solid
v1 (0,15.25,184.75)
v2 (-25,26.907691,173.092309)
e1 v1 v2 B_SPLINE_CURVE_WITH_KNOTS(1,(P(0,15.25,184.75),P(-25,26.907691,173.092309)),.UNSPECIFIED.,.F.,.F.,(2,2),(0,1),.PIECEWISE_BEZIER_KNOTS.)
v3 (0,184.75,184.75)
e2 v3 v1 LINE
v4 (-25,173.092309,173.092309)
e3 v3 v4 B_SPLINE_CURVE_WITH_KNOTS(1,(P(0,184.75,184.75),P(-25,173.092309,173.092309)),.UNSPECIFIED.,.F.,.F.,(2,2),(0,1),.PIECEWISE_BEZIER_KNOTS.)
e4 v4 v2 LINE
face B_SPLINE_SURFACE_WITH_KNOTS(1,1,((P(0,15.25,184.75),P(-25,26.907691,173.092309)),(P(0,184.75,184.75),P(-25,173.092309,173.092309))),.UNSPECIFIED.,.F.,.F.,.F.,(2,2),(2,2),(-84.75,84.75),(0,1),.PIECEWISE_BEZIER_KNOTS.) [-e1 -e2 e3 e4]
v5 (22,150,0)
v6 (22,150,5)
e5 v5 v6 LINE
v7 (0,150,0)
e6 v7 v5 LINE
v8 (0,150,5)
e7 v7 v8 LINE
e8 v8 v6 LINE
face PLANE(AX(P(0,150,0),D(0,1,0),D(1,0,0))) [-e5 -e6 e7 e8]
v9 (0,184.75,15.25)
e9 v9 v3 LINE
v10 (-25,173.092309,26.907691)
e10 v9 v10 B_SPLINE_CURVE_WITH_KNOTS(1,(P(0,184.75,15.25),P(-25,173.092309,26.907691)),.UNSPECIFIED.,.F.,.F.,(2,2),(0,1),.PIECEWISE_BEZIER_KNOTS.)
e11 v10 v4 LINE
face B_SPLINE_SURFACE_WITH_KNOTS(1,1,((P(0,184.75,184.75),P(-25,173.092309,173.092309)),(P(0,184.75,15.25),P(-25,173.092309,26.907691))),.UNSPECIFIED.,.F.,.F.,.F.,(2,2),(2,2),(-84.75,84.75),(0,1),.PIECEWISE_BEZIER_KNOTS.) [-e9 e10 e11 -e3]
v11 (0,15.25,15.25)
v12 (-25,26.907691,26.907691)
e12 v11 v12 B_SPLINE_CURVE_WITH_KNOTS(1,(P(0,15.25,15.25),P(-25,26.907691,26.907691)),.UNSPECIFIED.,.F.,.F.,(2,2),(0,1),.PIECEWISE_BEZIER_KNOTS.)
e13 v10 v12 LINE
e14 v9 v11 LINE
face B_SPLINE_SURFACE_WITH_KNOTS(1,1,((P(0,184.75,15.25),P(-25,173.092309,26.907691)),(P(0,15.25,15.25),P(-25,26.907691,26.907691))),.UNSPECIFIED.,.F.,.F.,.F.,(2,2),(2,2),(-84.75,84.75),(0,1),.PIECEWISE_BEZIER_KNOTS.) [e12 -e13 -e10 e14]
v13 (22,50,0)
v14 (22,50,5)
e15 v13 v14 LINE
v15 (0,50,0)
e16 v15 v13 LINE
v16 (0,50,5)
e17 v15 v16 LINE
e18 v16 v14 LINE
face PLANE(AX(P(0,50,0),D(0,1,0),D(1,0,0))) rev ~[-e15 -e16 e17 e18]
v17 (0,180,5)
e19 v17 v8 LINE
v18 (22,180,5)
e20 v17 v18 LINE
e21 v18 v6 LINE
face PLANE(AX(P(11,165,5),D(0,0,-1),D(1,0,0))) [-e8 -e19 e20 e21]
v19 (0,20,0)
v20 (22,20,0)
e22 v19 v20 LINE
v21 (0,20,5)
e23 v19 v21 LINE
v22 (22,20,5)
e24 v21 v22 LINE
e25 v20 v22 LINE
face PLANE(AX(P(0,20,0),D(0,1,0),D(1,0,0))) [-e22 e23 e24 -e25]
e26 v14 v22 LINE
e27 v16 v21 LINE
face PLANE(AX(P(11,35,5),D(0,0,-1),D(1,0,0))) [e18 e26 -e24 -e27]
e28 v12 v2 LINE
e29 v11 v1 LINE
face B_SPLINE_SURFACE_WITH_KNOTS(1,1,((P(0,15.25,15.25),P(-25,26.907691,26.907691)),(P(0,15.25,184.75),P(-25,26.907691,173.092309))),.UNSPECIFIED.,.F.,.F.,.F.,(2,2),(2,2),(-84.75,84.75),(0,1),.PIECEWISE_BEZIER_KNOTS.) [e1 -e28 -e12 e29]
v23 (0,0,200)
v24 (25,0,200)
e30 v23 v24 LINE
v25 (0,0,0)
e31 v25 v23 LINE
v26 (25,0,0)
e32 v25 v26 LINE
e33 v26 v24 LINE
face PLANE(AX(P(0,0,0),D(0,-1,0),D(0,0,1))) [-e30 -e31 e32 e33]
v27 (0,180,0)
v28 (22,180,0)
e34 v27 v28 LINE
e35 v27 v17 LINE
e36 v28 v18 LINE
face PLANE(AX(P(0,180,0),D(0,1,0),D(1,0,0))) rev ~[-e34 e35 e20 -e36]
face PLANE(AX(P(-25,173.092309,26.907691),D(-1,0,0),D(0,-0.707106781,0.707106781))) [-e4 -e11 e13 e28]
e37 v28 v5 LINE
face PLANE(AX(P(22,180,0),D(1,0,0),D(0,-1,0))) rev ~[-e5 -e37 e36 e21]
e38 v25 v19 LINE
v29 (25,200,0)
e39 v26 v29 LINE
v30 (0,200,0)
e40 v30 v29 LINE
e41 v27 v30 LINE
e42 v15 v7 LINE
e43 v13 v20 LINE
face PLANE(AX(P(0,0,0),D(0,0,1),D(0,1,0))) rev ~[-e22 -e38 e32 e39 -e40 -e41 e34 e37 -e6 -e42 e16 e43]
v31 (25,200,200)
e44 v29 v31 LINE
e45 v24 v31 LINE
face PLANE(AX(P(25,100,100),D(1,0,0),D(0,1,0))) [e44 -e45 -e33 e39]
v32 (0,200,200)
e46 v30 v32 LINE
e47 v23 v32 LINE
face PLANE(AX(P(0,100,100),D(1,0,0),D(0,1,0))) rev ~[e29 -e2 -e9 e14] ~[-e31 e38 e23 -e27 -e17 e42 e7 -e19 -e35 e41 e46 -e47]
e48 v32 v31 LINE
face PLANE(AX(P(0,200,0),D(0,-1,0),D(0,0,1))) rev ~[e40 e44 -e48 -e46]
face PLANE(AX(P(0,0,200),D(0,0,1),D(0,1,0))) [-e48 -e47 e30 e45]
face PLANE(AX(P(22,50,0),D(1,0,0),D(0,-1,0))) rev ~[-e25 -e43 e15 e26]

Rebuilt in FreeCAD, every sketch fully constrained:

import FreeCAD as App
import Part
import Sketcher

V = App.Vector
Q = App.Units.Quantity


def add_polygon(sketch, points):
    """Adds a closed chain of lines whose ends are joined by coincident constraints."""
    first, n = sketch.GeometryCount, len(points)
    for a, b in zip(points, points[1:] + points[:1]):
        sketch.addGeometry(Part.LineSegment(App.Vector(*a, 0), App.Vector(*b, 0)), False)
    for i in range(n):
        sketch.addConstraint(Sketcher.Constraint("Coincident", first + i, 2, first + (i + 1) % n, 1))

doc = App.newDocument("Part")
params = doc.addObject("Spreadsheet::Sheet", "Params")
for row, (alias, value) in enumerate([
    ("sketch1_width", "200 mm"),
    ("pad1_length", "25 mm"),
    ("sketch2_width", "169.5 mm"),
    ("pad2_length", "25 mm"),
    ("pad2_taper", "-25 deg"),
    ("sketch3_width", "22 mm"),
    ("sketch3_height", "30 mm"),
    ("pocket1_length", "5 mm"),
], start=1):
    params.set(f"A{row}", alias)
    params.set(f"B{row}", "=" + value)
    params.setAlias(f"B{row}", alias)

body = doc.addObject("PartDesign::Body", "Body")

sketch1 = body.newObject("Sketcher::SketchObject", "Sketch")
sketch1.AttachmentSupport = (doc.getObject("YZ_Plane"), [""])
sketch1.MapMode = "FlatFace"
add_polygon(sketch1, [(0, 200), (0, 0), (200, 0), (200, 200)])
sketch1.addConstraint(Sketcher.Constraint("Vertical", 0))
sketch1.addConstraint(Sketcher.Constraint("Horizontal", 1))
sketch1.addConstraint(Sketcher.Constraint("Vertical", 2))
sketch1.addConstraint(Sketcher.Constraint("Horizontal", 3))
sketch1.addConstraint(Sketcher.Constraint("Coincident", 0, 2, -1, 1))
sketch1.addConstraint(Sketcher.Constraint("Equal", 3, 0))
sketch1.addConstraint(Sketcher.Constraint("DistanceX", 1, 1, 1, 2, Q("200 mm")))
sketch1.setExpression("Constraints[10]", "Params.sketch1_width")
pad1 = body.newObject("PartDesign::Pad", "Pad")
pad1.Profile = sketch1
pad1.setExpression("Length", "Params.pad1_length")

sketch2 = body.newObject("Sketcher::SketchObject", "Sketch001")
sketch2.AttachmentSupport = (doc.getObject("YZ_Plane"), [""])
sketch2.MapMode = "FlatFace"
add_polygon(sketch2, [(185, 185), (185, 15), (15, 15), (15, 185)])
sketch2.addConstraint(Sketcher.Constraint("Vertical", 0))
sketch2.addConstraint(Sketcher.Constraint("Horizontal", 1))
sketch2.addConstraint(Sketcher.Constraint("Vertical", 2))
sketch2.addConstraint(Sketcher.Constraint("Horizontal", 3))
sketch2.addConstraint(Sketcher.Constraint("Equal", 3, 0))
sketch2.addConstraint(Sketcher.Constraint("DistanceX", 1, 2, 1, 1, Q("169.5 mm")))
sketch2.addConstraint(Sketcher.Constraint("DistanceX", -1, 1, 0, 2, Q("184.75 mm")))
sketch2.addConstraint(Sketcher.Constraint("DistanceY", -1, 1, 0, 2, Q("15.25 mm")))
sketch2.setExpression("Constraints[9]", "Params.sketch2_width")
pad2 = body.newObject("PartDesign::Pad", "Pad001")
pad2.Profile = sketch2
pad2.setExpression("Length", "Params.pad2_length")
pad2.Reversed = True
pad2.setExpression("TaperAngle", "Params.pad2_taper")

sketch3 = body.newObject("Sketcher::SketchObject", "Sketch002")
sketch3.AttachmentSupport = (doc.getObject("XY_Plane"), [""])
sketch3.MapMode = "FlatFace"
add_polygon(sketch3, [(0, 150), (0, 180), (22, 180), (22, 150)])
add_polygon(sketch3, [(0, 20), (0, 50), (22, 50), (22, 20)])
sketch3.addConstraint(Sketcher.Constraint("Vertical", 0))
sketch3.addConstraint(Sketcher.Constraint("Horizontal", 1))
sketch3.addConstraint(Sketcher.Constraint("Vertical", 2))
sketch3.addConstraint(Sketcher.Constraint("Horizontal", 3))
sketch3.addConstraint(Sketcher.Constraint("Vertical", 4))
sketch3.addConstraint(Sketcher.Constraint("Horizontal", 5))
sketch3.addConstraint(Sketcher.Constraint("Vertical", 6))
sketch3.addConstraint(Sketcher.Constraint("Horizontal", 7))
sketch3.addConstraint(Sketcher.Constraint("PointOnObject", 0, 2, -2))
sketch3.addConstraint(Sketcher.Constraint("PointOnObject", 4, 2, -2))
sketch3.addConstraint(Sketcher.Constraint("Vertical", 2, 2, 5, 2))
sketch3.addConstraint(Sketcher.Constraint("Equal", 2, 4))
sketch3.addConstraint(Sketcher.Constraint("DistanceX", 1, 1, 1, 2, Q("22 mm")))
sketch3.addConstraint(Sketcher.Constraint("DistanceY", 0, 1, 0, 2, Q("30 mm")))
sketch3.addConstraint(Sketcher.Constraint("DistanceY", -1, 1, 0, 2, Q("180 mm")))
sketch3.addConstraint(Sketcher.Constraint("DistanceY", -1, 1, 4, 2, Q("50 mm")))
sketch3.setExpression("Constraints[20]", "Params.sketch3_width")
sketch3.setExpression("Constraints[21]", "Params.sketch3_height")
pocket1 = body.newObject("PartDesign::Pocket", "Pocket")
pocket1.Profile = sketch3
pocket1.setExpression("Length", "Params.pocket1_length")
pocket1.Reversed = True

doc.recompute()
